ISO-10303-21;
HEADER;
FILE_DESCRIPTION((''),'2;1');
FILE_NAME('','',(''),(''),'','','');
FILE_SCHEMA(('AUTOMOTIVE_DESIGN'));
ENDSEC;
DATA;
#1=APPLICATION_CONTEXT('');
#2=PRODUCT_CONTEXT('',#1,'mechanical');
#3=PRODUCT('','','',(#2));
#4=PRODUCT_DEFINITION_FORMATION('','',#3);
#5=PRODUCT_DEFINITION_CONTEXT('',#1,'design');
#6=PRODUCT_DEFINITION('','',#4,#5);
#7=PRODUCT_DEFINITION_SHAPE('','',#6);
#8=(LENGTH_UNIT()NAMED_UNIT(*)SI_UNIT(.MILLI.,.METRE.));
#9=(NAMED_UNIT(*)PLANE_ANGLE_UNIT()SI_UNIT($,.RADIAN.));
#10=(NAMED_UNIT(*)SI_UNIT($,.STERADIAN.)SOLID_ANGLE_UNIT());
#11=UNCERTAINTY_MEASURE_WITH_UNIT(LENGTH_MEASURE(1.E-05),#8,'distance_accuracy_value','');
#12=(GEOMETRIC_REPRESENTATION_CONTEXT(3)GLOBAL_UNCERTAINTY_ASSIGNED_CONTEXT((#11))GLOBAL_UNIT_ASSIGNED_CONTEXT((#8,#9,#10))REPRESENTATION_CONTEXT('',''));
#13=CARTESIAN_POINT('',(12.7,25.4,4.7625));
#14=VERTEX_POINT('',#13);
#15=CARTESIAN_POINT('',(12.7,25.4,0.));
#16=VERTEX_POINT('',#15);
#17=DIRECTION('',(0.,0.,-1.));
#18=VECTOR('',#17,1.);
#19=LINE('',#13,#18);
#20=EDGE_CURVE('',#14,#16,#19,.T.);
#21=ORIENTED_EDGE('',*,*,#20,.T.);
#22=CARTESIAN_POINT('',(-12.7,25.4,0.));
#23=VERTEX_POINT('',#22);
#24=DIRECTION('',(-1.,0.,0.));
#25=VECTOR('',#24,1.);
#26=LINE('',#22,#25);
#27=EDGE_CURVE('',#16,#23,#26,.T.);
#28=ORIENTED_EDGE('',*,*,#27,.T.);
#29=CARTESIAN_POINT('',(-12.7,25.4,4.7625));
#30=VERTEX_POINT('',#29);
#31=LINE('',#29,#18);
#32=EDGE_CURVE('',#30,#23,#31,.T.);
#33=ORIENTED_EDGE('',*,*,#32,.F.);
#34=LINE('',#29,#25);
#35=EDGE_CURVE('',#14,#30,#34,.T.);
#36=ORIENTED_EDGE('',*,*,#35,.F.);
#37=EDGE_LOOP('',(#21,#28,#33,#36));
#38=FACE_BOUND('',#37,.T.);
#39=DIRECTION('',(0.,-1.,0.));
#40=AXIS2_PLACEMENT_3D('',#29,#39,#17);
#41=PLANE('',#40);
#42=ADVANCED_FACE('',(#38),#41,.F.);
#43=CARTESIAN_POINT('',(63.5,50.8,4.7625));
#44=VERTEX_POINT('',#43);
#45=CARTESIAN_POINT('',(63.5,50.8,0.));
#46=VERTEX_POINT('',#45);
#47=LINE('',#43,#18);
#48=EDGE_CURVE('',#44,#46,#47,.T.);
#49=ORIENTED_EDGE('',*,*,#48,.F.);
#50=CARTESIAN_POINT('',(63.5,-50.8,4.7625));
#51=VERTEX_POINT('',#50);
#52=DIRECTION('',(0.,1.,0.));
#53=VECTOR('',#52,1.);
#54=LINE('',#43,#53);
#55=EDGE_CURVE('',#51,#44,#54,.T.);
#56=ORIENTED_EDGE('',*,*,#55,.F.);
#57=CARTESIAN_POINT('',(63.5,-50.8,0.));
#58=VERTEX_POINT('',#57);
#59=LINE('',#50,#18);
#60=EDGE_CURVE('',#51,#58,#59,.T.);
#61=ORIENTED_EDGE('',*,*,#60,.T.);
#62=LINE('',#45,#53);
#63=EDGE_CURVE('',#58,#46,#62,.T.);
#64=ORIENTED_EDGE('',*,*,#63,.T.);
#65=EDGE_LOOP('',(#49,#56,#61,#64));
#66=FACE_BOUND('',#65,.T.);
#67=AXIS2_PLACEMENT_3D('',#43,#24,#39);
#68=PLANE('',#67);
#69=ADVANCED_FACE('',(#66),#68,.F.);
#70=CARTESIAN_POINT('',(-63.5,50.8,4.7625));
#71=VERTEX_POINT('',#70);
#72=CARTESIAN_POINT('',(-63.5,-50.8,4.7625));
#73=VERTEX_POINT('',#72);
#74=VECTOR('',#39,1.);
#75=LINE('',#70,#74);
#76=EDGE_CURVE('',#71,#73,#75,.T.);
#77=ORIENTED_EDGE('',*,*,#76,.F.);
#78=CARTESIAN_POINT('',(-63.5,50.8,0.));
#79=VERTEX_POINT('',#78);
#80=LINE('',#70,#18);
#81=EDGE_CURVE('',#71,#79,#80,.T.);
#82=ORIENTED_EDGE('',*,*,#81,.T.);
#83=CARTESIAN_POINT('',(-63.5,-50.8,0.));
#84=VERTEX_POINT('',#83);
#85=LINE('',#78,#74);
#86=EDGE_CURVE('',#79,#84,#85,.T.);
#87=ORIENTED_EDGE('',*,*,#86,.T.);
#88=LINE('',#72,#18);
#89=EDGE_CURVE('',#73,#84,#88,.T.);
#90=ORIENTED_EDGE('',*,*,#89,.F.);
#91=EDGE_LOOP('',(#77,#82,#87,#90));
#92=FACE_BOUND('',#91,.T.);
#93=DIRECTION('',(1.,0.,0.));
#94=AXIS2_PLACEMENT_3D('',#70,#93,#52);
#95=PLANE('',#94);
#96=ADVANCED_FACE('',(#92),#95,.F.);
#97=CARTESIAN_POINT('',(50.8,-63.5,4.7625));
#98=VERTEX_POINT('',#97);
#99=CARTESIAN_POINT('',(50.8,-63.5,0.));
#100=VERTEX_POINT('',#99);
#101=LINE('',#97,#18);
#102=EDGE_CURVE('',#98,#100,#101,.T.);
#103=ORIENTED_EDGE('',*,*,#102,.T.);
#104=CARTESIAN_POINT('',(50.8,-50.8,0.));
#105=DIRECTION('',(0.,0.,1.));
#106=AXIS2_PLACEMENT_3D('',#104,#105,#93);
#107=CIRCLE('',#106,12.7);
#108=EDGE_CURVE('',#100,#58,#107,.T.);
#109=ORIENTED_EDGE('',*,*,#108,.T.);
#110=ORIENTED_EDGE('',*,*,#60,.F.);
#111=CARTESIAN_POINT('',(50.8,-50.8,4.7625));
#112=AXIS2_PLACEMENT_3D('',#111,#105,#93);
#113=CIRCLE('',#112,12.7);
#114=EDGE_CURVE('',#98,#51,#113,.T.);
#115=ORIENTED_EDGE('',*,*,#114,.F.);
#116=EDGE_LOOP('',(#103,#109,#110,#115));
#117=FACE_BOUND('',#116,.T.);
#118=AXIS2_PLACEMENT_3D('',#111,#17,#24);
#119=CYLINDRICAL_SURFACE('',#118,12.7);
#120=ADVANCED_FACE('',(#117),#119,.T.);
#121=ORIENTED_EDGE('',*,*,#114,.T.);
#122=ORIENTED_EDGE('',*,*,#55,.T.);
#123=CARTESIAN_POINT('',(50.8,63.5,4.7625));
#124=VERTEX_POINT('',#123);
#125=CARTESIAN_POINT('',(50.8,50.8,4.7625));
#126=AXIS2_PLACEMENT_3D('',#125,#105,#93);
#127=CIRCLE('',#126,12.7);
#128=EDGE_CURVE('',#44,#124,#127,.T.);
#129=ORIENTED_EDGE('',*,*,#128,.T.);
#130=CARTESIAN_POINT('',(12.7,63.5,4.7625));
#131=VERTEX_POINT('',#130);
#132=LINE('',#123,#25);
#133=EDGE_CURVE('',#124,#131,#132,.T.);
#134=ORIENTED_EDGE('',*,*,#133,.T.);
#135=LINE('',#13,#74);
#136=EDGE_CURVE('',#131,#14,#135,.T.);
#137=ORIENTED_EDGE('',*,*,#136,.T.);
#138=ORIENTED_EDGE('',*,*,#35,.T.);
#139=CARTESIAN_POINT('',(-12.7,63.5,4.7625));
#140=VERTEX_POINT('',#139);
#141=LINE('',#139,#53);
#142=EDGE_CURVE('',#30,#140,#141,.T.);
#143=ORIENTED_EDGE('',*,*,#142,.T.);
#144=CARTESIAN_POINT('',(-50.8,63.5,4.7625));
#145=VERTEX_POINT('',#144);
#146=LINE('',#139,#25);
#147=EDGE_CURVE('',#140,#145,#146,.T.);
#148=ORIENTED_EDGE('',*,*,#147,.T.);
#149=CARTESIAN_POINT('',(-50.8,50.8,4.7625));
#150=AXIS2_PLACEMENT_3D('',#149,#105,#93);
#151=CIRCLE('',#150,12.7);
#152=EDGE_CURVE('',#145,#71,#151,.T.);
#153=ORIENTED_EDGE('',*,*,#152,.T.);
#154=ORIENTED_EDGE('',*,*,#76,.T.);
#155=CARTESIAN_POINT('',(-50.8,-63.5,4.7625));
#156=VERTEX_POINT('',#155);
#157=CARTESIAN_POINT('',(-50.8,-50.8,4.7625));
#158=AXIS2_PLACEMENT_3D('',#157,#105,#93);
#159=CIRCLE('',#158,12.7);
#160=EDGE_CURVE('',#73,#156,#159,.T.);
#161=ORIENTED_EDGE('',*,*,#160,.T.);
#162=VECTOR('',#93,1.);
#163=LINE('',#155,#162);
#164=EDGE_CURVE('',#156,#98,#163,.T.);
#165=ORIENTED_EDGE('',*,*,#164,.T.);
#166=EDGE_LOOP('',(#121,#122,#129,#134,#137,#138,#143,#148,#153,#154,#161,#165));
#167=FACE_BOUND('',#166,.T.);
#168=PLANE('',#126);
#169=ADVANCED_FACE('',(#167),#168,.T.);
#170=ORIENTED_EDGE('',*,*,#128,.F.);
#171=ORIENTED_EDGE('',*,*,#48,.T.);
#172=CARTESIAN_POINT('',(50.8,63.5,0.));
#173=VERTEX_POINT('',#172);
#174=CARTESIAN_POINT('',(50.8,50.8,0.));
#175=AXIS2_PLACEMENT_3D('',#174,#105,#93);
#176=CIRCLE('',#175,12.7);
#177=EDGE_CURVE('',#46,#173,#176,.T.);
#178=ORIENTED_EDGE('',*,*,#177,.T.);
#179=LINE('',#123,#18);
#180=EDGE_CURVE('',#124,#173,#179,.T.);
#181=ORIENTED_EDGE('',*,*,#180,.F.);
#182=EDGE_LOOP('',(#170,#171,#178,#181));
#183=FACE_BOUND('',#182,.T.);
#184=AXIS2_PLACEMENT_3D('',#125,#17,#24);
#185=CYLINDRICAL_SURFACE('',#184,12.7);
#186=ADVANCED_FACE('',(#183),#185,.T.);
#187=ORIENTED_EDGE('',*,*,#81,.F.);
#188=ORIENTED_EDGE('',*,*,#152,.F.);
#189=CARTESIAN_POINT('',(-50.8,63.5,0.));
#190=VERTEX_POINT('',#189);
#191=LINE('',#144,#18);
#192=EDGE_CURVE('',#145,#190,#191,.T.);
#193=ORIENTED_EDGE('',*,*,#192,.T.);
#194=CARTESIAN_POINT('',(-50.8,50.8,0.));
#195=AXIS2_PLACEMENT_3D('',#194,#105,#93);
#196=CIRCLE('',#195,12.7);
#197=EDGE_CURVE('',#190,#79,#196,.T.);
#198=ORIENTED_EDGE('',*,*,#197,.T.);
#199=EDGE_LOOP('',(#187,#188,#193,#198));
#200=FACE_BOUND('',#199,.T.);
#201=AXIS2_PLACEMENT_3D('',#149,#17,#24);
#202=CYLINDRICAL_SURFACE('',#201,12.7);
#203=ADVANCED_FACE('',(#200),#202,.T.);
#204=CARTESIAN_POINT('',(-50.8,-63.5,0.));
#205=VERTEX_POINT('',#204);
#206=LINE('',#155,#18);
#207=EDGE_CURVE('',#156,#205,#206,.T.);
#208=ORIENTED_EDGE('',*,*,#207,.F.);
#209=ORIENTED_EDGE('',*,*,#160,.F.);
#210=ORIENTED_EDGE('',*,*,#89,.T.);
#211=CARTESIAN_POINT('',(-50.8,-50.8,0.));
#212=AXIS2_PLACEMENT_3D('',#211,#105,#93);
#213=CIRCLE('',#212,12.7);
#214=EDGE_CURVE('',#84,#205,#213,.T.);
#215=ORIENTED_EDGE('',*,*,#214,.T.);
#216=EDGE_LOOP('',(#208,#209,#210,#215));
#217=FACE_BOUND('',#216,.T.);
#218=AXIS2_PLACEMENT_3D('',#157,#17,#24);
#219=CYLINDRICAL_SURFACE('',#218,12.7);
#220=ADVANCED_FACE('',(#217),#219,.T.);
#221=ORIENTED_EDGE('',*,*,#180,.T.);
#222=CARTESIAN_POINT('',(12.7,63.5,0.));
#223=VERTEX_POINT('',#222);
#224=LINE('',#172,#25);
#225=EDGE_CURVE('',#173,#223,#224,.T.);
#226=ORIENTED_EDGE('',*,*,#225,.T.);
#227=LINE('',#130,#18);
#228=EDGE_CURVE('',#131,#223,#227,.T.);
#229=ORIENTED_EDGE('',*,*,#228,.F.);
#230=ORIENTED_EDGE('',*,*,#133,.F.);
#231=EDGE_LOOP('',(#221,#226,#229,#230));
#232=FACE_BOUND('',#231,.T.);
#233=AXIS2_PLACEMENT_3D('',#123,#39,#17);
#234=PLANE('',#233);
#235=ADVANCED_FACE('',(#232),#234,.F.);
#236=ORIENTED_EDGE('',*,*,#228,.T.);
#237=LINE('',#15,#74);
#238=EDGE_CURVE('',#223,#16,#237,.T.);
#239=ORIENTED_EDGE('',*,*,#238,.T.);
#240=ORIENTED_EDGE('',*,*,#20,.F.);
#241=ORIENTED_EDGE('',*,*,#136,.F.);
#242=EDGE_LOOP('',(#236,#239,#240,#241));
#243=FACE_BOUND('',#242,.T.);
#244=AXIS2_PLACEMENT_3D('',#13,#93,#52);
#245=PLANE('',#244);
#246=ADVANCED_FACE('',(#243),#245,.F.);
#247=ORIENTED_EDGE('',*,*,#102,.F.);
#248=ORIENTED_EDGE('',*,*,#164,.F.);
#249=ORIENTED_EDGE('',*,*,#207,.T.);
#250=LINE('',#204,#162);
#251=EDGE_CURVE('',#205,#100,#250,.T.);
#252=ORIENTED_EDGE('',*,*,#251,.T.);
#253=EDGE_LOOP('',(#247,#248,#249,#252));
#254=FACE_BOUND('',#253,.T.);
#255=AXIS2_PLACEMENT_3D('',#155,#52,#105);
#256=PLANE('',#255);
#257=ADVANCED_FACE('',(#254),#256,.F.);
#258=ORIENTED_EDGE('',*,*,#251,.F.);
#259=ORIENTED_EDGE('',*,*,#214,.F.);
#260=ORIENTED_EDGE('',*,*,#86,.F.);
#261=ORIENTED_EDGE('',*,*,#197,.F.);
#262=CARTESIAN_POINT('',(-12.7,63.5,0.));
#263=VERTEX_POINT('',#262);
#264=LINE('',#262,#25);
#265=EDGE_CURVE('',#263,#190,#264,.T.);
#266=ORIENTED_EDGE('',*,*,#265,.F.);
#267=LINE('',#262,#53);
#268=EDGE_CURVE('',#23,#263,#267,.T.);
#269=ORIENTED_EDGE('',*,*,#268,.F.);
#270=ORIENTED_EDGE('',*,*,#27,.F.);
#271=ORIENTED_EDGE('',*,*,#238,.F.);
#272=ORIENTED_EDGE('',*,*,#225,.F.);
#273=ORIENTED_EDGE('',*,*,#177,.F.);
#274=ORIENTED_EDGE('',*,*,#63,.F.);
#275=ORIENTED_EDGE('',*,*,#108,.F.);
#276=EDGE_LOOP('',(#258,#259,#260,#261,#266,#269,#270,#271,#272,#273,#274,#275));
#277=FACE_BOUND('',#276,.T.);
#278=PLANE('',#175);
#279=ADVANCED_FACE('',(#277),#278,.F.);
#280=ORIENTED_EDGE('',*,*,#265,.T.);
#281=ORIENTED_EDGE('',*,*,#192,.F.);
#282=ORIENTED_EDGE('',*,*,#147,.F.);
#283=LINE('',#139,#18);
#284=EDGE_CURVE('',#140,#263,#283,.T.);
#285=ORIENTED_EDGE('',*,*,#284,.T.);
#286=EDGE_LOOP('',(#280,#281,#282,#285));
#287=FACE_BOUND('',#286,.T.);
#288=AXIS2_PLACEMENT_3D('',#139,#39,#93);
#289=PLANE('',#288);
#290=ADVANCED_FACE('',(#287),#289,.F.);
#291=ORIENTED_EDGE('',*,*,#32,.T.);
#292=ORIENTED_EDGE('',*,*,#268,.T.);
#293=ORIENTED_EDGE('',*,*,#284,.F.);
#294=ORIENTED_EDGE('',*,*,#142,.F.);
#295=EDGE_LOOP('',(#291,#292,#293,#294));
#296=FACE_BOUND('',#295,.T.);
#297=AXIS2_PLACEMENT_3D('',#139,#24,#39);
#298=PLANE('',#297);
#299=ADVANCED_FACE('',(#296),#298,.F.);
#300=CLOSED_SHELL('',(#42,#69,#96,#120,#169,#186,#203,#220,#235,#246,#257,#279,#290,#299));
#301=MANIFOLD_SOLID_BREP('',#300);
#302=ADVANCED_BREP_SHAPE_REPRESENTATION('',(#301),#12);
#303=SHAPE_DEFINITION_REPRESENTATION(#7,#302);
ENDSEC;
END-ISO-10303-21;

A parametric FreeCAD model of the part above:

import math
import FreeCAD as App
import Part
import Sketcher
from FreeCAD import Vector
Q = App.Units.Quantity

doc = App.newDocument("Part")
params = doc.addObject("Spreadsheet::Sheet", "Params")
for row, (alias, value) in enumerate([
    ("sketch1_radius", "0.5 in"),
    ("sketch1_width", "4 in"),
    ("sketch1_width2", "1 in"),
    ("pad1_length", "0.1875 in"),
], start=1):
    params.set(f"A{row}", alias)
    params.set(f"B{row}", "=" + value)
    params.setAlias(f"B{row}", alias)

body = doc.addObject("PartDesign::Body", "Body")

sketch1 = body.newObject("Sketcher::SketchObject", "Sketch")
sketch1.AttachmentSupport = (doc.getObject("XY_Plane"), [""])
sketch1.MapMode = "FlatFace"
sketch1.addGeometry([
    Part.LineSegment(Vector(-64, 51, 0), Vector(-64, -51, 0)),
    Part.ArcOfCircle(Part.Circle(Vector(-51, -51, 0), Vector(0, 0, 1), 13), math.radians(180), math.radians(270)),
    Part.LineSegment(Vector(-51, -64, 0), Vector(51, -64, 0)),
    Part.ArcOfCircle(Part.Circle(Vector(51, -51, 0), Vector(0, 0, 1), 13), math.radians(-90), math.radians(0)),
    Part.LineSegment(Vector(64, -51, 0), Vector(64, 51, 0)),
    Part.ArcOfCircle(Part.Circle(Vector(51, 51, 0), Vector(0, 0, 1), 13), math.radians(0), math.radians(90)),
    Part.LineSegment(Vector(51, 64, 0), Vector(13, 64, 0)),
    Part.LineSegment(Vector(13, 64, 0), Vector(13, 25, 0)),
    Part.LineSegment(Vector(13, 25, 0), Vector(-13, 25, 0)),
    Part.LineSegment(Vector(-13, 25, 0), Vector(-13, 64, 0)),
    Part.LineSegment(Vector(-13, 64, 0), Vector(-51, 64, 0)),
    Part.ArcOfCircle(Part.Circle(Vector(-51, 51, 0), Vector(0, 0, 1), 13), math.radians(90), math.radians(180)),
], False)
sketch1.addConstraint([
    Sketcher.Constraint("Tangent", 0, 2, 1, 1),
    Sketcher.Constraint("Tangent", 1, 2, 2, 1),
    Sketcher.Constraint("Tangent", 2, 2, 3, 1),
    Sketcher.Constraint("Tangent", 3, 2, 4, 1),
    Sketcher.Constraint("Tangent", 4, 2, 5, 1),
    Sketcher.Constraint("Tangent", 5, 2, 6, 1),
    Sketcher.Constraint("Coincident", 6, 2, 7, 1),
    Sketcher.Constraint("Coincident", 7, 2, 8, 1),
    Sketcher.Constraint("Coincident", 8, 2, 9, 1),
    Sketcher.Constraint("Coincident", 9, 2, 10, 1),
    Sketcher.Constraint("Tangent", 10, 2, 11, 1),
    Sketcher.Constraint("Tangent", 11, 2, 0, 1),
    Sketcher.Constraint("Vertical", 0),
    Sketcher.Constraint("Horizontal", 2),
    Sketcher.Constraint("Vertical", 4),
    Sketcher.Constraint("Horizontal", 6),
    Sketcher.Constraint("Vertical", 7),
    Sketcher.Constraint("Horizontal", 8),
    Sketcher.Constraint("Vertical", 9),
    Sketcher.Constraint("Horizontal", 10),
    Sketcher.Constraint("Equal", 1, 3),
    Sketcher.Constraint("Equal", 3, 5),
    Sketcher.Constraint("Equal", 5, 11),
    Sketcher.Constraint("Symmetric", 1, 3, 5, 3, -1, 1),
    Sketcher.Constraint("Symmetric", 6, 2, 9, 2, -2),
    Sketcher.Constraint("Equal", 2, 0),
    Sketcher.Constraint("Equal", 10, 7),
    Sketcher.Constraint("Radius", 1, Q("0.5 in")),
    Sketcher.Constraint("DistanceX", 2, 1, 2, 2, Q("4 in")),
    Sketcher.Constraint("DistanceX", 8, 2, 8, 1, Q("1 in")),
])
sketch1.setExpression("Constraints[27]", "Params.sketch1_radius")
sketch1.setExpression("Constraints[28]", "Params.sketch1_width")
sketch1.setExpression("Constraints[29]", "Params.sketch1_width2")
pad1 = body.newObject("PartDesign::Pad", "Pad")
pad1.Profile = sketch1
pad1.setExpression("Length", "Params.pad1_length")

doc.recompute()
